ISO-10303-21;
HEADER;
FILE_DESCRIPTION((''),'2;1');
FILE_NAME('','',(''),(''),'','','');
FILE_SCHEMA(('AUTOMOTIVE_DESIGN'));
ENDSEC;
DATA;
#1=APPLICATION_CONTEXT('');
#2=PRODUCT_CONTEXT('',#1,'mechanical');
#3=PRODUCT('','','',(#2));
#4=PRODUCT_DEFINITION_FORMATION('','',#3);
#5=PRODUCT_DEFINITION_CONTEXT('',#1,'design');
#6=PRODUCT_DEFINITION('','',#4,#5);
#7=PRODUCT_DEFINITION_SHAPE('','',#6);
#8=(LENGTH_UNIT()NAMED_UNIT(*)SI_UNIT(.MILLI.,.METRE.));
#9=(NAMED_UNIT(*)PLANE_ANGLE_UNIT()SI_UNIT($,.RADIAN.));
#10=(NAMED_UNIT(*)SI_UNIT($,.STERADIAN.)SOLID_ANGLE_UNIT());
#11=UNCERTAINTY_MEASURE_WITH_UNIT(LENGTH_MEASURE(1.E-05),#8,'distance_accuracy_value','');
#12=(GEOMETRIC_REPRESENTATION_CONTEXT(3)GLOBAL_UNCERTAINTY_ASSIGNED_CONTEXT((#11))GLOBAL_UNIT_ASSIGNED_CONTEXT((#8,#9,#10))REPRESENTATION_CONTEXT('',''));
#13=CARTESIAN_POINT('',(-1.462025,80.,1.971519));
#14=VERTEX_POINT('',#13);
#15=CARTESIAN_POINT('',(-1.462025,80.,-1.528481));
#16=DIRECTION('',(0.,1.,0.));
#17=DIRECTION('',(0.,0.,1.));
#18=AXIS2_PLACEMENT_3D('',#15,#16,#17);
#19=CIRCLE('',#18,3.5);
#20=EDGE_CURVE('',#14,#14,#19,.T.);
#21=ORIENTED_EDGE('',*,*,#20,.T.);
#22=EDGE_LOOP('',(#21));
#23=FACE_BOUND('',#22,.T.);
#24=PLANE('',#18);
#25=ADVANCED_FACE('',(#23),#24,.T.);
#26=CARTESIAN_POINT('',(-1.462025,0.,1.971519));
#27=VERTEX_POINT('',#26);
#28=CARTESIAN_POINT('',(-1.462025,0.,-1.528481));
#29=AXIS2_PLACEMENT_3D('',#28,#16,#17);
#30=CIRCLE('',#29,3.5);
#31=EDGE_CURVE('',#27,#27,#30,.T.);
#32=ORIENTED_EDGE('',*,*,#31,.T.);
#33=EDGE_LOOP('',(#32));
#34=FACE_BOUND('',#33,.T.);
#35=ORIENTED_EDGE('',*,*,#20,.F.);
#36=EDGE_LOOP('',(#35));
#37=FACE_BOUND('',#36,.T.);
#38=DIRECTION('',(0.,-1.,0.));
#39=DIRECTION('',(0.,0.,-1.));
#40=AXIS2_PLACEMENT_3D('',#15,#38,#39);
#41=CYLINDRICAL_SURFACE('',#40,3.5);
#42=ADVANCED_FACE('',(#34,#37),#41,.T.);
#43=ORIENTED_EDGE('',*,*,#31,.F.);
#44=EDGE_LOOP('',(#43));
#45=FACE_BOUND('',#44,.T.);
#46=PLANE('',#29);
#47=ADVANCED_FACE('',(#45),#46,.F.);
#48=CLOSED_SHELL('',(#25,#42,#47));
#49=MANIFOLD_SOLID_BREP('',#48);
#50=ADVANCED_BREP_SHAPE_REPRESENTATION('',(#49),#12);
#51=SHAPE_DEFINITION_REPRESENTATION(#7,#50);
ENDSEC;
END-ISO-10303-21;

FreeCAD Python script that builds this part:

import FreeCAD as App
import Part
import Sketcher

doc = App.newDocument("Part")
body = doc.addObject("PartDesign::Body", "Body")

# Sketch on XZ plane
sketch1 = body.newObject("Sketcher::SketchObject", "Sketch")
sketch1.AttachmentSupport = (doc.getObject("XZ_Plane"), [""])
sketch1.MapMode = "FlatFace"
sketch1.addGeometry(Part.Circle(App.Vector(-1.5, -1.5, 0), App.Vector(0, 0, 1), 3.5), False)
sketch1.addConstraint([
    Sketcher.Constraint("Diameter", 0, 7.0),
    Sketcher.Constraint("DistanceY", 0, 3, -1, 1, 1.528481),
    Sketcher.Constraint("DistanceX", 0, 3, -1, 1, 1.462025),
])
pad1 = body.newObject("PartDesign::Pad", "Pad")
pad1.Profile = sketch1
pad1.Length = 80
pad1.Reversed = True

doc.recompute()
